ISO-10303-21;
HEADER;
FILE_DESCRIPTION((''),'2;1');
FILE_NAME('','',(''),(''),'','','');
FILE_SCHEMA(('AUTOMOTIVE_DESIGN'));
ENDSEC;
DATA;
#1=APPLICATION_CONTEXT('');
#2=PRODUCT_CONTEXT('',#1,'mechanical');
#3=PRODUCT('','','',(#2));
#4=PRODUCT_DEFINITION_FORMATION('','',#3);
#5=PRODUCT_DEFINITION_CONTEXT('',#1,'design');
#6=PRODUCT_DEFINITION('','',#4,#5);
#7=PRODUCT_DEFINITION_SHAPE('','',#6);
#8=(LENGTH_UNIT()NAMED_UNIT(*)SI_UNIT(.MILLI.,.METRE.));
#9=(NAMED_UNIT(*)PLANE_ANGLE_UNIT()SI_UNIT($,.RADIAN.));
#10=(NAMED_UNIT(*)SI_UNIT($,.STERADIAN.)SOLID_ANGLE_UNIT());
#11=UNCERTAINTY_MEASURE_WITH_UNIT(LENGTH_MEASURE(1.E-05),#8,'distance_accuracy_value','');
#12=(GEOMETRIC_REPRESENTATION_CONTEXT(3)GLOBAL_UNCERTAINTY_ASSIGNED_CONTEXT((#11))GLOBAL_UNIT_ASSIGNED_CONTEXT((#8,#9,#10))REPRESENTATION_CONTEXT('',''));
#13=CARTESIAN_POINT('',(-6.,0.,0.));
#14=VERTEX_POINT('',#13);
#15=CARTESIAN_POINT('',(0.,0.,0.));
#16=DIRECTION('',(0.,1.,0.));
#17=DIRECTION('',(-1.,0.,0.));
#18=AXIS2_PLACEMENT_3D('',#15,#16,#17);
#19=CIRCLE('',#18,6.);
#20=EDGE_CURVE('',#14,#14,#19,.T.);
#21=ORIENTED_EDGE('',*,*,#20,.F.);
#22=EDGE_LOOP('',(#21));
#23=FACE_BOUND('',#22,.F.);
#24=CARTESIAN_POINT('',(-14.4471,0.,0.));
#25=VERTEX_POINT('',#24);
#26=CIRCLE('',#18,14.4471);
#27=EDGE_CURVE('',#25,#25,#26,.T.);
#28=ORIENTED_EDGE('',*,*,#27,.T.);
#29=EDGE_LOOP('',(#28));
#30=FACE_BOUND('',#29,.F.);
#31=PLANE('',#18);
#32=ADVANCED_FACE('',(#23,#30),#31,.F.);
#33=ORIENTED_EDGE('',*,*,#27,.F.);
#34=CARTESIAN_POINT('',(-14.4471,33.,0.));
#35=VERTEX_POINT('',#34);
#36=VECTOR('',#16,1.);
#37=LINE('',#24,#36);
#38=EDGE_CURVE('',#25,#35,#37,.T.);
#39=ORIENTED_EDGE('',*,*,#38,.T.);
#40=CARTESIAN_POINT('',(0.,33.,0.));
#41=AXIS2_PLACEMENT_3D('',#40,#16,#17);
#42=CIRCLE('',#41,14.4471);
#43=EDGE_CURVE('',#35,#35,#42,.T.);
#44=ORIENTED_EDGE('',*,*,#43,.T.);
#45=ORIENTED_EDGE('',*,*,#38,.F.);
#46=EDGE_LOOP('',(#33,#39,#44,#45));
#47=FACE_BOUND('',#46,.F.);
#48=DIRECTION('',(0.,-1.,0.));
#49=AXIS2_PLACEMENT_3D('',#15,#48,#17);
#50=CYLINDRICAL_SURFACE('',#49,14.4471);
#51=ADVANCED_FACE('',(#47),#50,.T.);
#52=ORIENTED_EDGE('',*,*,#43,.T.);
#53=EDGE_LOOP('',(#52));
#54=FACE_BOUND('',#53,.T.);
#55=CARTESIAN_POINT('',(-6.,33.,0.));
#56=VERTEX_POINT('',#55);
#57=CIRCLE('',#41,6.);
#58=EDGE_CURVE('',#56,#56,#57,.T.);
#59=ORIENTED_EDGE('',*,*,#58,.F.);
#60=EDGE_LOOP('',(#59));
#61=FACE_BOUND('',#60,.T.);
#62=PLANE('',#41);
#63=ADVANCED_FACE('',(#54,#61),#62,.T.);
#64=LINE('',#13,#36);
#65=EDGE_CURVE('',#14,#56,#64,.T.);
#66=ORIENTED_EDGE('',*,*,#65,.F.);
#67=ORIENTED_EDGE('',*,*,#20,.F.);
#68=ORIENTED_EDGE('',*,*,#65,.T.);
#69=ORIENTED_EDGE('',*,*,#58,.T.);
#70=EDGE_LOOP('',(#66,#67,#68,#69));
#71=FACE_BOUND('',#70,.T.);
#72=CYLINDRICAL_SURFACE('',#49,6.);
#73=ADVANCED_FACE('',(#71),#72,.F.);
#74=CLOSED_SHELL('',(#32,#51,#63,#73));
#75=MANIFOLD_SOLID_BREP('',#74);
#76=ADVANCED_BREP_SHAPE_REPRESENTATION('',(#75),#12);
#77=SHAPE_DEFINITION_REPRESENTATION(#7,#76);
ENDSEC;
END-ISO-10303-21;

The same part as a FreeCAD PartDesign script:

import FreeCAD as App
import Part
import Sketcher

V = App.Vector
Q = App.Units.Quantity

doc = App.newDocument("Part")
body = doc.addObject("PartDesign::Body", "Body")

# Sketch on XZ plane
sketch1 = body.newObject("Sketcher::SketchObject", "Sketch")
sketch1.AttachmentSupport = (doc.getObject("XZ_Plane"), [""])
sketch1.MapMode = "FlatFace"
sketch1.addGeometry(Part.Circle(V(0, 0, 0), V(0, 0, 1), 14), False)
sketch1.addGeometry(Part.Circle(V(0, 0, 0), V(0, 0, 1), 6), False)
sketch1.addConstraint(Sketcher.Constraint("Coincident", 0, 3, -1, 1))
sketch1.addConstraint(Sketcher.Constraint("Coincident", 1, 3, -1, 1))
sketch1.addConstraint(Sketcher.Constraint("Diameter", 1, Q("12 mm")))
sketch1.addConstraint(Sketcher.Constraint("Diameter", 0, Q("28.8942 mm")))
pad1 = body.newObject("PartDesign::Pad", "Pad")
pad1.Profile = sketch1
pad1.Length = 33
pad1.Reversed = True

doc.recompute()
